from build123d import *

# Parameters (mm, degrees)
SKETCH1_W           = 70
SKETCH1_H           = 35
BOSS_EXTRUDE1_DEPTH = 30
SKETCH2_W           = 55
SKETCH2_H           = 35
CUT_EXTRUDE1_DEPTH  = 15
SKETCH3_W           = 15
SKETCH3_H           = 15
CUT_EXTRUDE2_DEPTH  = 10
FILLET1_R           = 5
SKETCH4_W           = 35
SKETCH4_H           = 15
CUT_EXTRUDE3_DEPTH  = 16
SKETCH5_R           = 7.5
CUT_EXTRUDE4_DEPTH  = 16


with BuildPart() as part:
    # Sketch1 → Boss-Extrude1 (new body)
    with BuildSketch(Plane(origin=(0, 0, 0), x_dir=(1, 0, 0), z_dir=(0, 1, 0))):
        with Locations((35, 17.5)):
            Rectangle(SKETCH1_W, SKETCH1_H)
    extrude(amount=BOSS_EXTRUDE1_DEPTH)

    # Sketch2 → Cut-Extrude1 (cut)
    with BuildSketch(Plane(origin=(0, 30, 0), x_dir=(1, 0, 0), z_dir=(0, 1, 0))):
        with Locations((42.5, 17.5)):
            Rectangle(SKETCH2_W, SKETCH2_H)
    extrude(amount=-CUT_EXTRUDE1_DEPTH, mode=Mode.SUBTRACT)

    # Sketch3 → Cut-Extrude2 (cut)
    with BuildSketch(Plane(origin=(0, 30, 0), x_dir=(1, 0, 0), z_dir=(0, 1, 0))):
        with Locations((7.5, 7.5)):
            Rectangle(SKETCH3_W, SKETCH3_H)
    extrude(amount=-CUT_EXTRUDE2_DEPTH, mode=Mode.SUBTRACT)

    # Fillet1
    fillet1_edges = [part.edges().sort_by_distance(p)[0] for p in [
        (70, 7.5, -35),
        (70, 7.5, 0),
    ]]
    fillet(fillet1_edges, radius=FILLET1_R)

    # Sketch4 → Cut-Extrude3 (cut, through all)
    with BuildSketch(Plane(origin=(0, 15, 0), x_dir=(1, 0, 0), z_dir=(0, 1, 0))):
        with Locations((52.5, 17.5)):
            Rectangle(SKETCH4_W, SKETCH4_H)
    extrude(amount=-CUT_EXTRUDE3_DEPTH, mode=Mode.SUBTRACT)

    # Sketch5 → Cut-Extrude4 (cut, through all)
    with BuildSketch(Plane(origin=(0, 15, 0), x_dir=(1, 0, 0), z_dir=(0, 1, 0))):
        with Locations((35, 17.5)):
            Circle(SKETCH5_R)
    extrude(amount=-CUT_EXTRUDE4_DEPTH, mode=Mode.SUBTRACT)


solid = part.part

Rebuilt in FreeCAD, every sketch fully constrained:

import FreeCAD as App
import Part
import Sketcher


def edges_at(feature, points):
    """Names of the edges that pass closest to the given points."""
    edges = feature.Shape.Edges
    near = lambda p: min(range(len(edges)), key=lambda i: edges[i].distToShape(Part.Vertex(*p))[0])
    return sorted({f"Edge{near(p) + 1}" for p in points})

doc = App.newDocument("Part")
params = doc.addObject("Spreadsheet::Sheet", "Params")
for row, (alias, value) in enumerate([
    ("sketch1_width", "70 mm"),
    ("sketch1_height", "35 mm"),
    ("pad1_length", "30 mm"),
    ("sketch2_width", "55 mm"),
    ("sketch2_height", "35 mm"),
    ("pocket1_length", "15 mm"),
    ("sketch3_width", "15 mm"),
    ("pocket2_length", "10 mm"),
    ("fillet_radius", "5 mm"),
    ("sketch4_width", "35 mm"),
    ("sketch4_height", "15 mm"),
    ("sketch5_diameter", "15 mm"),
], start=1):
    params.set(f"A{row}", alias)
    params.set(f"B{row}", "=" + value)
    params.setAlias(f"B{row}", alias)

body = doc.addObject("PartDesign::Body", "Body")

# Sketch on XZ plane
sketch1 = doc.addObject("Sketcher::SketchObject", "Sketch")
body.addObject(sketch1)
sketch1.AttachmentSupport = (doc.XZ_Plane, [""])
sketch1.MapMode = "FlatFace"
sketch1.addGeometry(Part.LineSegment(App.Vector(0, -35, 0), App.Vector(0, 0, 0)), False)
sketch1.addGeometry(Part.LineSegment(App.Vector(0, 0, 0), App.Vector(70, 0, 0)), False)
sketch1.addGeometry(Part.LineSegment(App.Vector(70, 0, 0), App.Vector(70, -35, 0)), False)
sketch1.addGeometry(Part.LineSegment(App.Vector(70, -35, 0), App.Vector(0, -35, 0)), False)
sketch1.addConstraint(Sketcher.Constraint("Coincident", 0, 2, 1, 1))
sketch1.addConstraint(Sketcher.Constraint("Coincident", 1, 2, 2, 1))
sketch1.addConstraint(Sketcher.Constraint("Coincident", 2, 2, 3, 1))
sketch1.addConstraint(Sketcher.Constraint("Coincident", 3, 2, 0, 1))
sketch1.addConstraint(Sketcher.Constraint("Vertical", 0))
sketch1.addConstraint(Sketcher.Constraint("Horizontal", 1))
sketch1.addConstraint(Sketcher.Constraint("Vertical", 2))
sketch1.addConstraint(Sketcher.Constraint("Horizontal", 3))
sketch1.addConstraint(Sketcher.Constraint("Coincident", 0, 2, -1, 1))
sketch1.addConstraint(Sketcher.Constraint("DistanceX", 1, 1, 1, 2, 70.0))
sketch1.addConstraint(Sketcher.Constraint("DistanceY", 0, 1, 0, 2, 35.0))
sketch1.setExpression("Constraints[9]", "Params.sketch1_width")
sketch1.setExpression("Constraints[10]", "Params.sketch1_height")
pad1 = doc.addObject("PartDesign::Pad", "Pad")
body.addObject(pad1)
pad1.Profile = sketch1
pad1.setExpression("Length", "Params.pad1_length")
pad1.Reversed = True

# Sketch on XZ plane
sketch2 = doc.addObject("Sketcher::SketchObject", "Sketch001")
body.addObject(sketch2)
sketch2.AttachmentSupport = (doc.XZ_Plane, [""])
sketch2.MapMode = "FlatFace"
sketch2.AttachmentOffset = App.Placement(App.Vector(0, 0, -30), App.Rotation())
sketch2.addGeometry(Part.LineSegment(App.Vector(15, -35, 0), App.Vector(15, 0, 0)), False)
sketch2.addGeometry(Part.LineSegment(App.Vector(15, 0, 0), App.Vector(70, 0, 0)), False)
sketch2.addGeometry(Part.LineSegment(App.Vector(70, 0, 0), App.Vector(70, -35, 0)), False)
sketch2.addGeometry(Part.LineSegment(App.Vector(70, -35, 0), App.Vector(15, -35, 0)), False)
sketch2.addConstraint(Sketcher.Constraint("Coincident", 0, 2, 1, 1))
sketch2.addConstraint(Sketcher.Constraint("Coincident", 1, 2, 2, 1))
sketch2.addConstraint(Sketcher.Constraint("Coincident", 2, 2, 3, 1))
sketch2.addConstraint(Sketcher.Constraint("Coincident", 3, 2, 0, 1))
sketch2.addConstraint(Sketcher.Constraint("Vertical", 0))
sketch2.addConstraint(Sketcher.Constraint("Horizontal", 1))
sketch2.addConstraint(Sketcher.Constraint("Vertical", 2))
sketch2.addConstraint(Sketcher.Constraint("Horizontal", 3))
sketch2.addConstraint(Sketcher.Constraint("PointOnObject", 0, 2, -1))
sketch2.addConstraint(Sketcher.Constraint("DistanceX", 1, 1, 1, 2, 55.0))
sketch2.addConstraint(Sketcher.Constraint("DistanceY", 0, 1, 0, 2, 35.0))
sketch2.addConstraint(Sketcher.Constraint("DistanceX", -1, 1, 0, 2, 15.0))
sketch2.setExpression("Constraints[9]", "Params.sketch2_width")
sketch2.setExpression("Constraints[10]", "Params.sketch2_height")
pocket1 = doc.addObject("PartDesign::Pocket", "Pocket")
body.addObject(pocket1)
pocket1.Profile = sketch2
pocket1.setExpression("Length", "Params.pocket1_length")
pocket1.Reversed = True

# Sketch on XZ plane
sketch3 = doc.addObject("Sketcher::SketchObject", "Sketch002")
body.addObject(sketch3)
sketch3.AttachmentSupport = (doc.XZ_Plane, [""])
sketch3.MapMode = "FlatFace"
sketch3.AttachmentOffset = App.Placement(App.Vector(0, 0, -30), App.Rotation())
sketch3.addGeometry(Part.LineSegment(App.Vector(0, -15, 0), App.Vector(0, 0, 0)), False)
sketch3.addGeometry(Part.LineSegment(App.Vector(0, 0, 0), App.Vector(15, 0, 0)), False)
sketch3.addGeometry(Part.LineSegment(App.Vector(15, 0, 0), App.Vector(15, -15, 0)), False)
sketch3.addGeometry(Part.LineSegment(App.Vector(15, -15, 0), App.Vector(0, -15, 0)), False)
sketch3.addConstraint(Sketcher.Constraint("Coincident", 0, 2, 1, 1))
sketch3.addConstraint(Sketcher.Constraint("Coincident", 1, 2, 2, 1))
sketch3.addConstraint(Sketcher.Constraint("Coincident", 2, 2, 3, 1))
sketch3.addConstraint(Sketcher.Constraint("Coincident", 3, 2, 0, 1))
sketch3.addConstraint(Sketcher.Constraint("Vertical", 0))
sketch3.addConstraint(Sketcher.Constraint("Horizontal", 1))
sketch3.addConstraint(Sketcher.Constraint("Vertical", 2))
sketch3.addConstraint(Sketcher.Constraint("Horizontal", 3))
sketch3.addConstraint(Sketcher.Constraint("Coincident", 0, 2, -1, 1))
sketch3.addConstraint(Sketcher.Constraint("Equal", 3, 0))
sketch3.addConstraint(Sketcher.Constraint("DistanceX", 1, 1, 1, 2, 15.0))
sketch3.setExpression("Constraints[10]", "Params.sketch3_width")
pocket2 = doc.addObject("PartDesign::Pocket", "Pocket001")
body.addObject(pocket2)
pocket2.Profile = sketch3
pocket2.setExpression("Length", "Params.pocket2_length")
pocket2.Reversed = True
doc.recompute()

fillet = doc.addObject("PartDesign::Fillet", "Fillet")
body.addObject(fillet)
fillet.Base = (pocket2, edges_at(pocket2, [(70, 7.5, -35), (70, 7.5, 0)]))
fillet.setExpression("Radius", "Params.fillet_radius")

# Sketch on XZ plane
sketch4 = doc.addObject("Sketcher::SketchObject", "Sketch003")
body.addObject(sketch4)
sketch4.AttachmentSupport = (doc.XZ_Plane, [""])
sketch4.MapMode = "FlatFace"
sketch4.AttachmentOffset = App.Placement(App.Vector(0, 0, -15), App.Rotation())
sketch4.addGeometry(Part.LineSegment(App.Vector(35, -25, 0), App.Vector(35, -10, 0)), False)
sketch4.addGeometry(Part.LineSegment(App.Vector(35, -10, 0), App.Vector(70, -10, 0)), False)
sketch4.addGeometry(Part.LineSegment(App.Vector(70, -10, 0), App.Vector(70, -25, 0)), False)
sketch4.addGeometry(Part.LineSegment(App.Vector(70, -25, 0), App.Vector(35, -25, 0)), False)
sketch4.addConstraint(Sketcher.Constraint("Coincident", 0, 2, 1, 1))
sketch4.addConstraint(Sketcher.Constraint("Coincident", 1, 2, 2, 1))
sketch4.addConstraint(Sketcher.Constraint("Coincident", 2, 2, 3, 1))
sketch4.addConstraint(Sketcher.Constraint("Coincident", 3, 2, 0, 1))
sketch4.addConstraint(Sketcher.Constraint("Vertical", 0))
sketch4.addConstraint(Sketcher.Constraint("Horizontal", 1))
sketch4.addConstraint(Sketcher.Constraint("Vertical", 2))
sketch4.addConstraint(Sketcher.Constraint("Horizontal", 3))
sketch4.addConstraint(Sketcher.Constraint("DistanceX", 1, 1, 1, 2, 35.0))
sketch4.addConstraint(Sketcher.Constraint("DistanceY", 0, 1, 0, 2, 15.0))
sketch4.addConstraint(Sketcher.Constraint("DistanceX", -1, 1, 0, 2, 35.0))
sketch4.addConstraint(Sketcher.Constraint("DistanceY", 0, 2, -1, 1, 10.0))
sketch4.setExpression("Constraints[8]", "Params.sketch4_width")
sketch4.setExpression("Constraints[9]", "Params.sketch4_height")
pocket3 = doc.addObject("PartDesign::Pocket", "Pocket002")
body.addObject(pocket3)
pocket3.Profile = sketch4
pocket3.Type = "ThroughAll"
pocket3.Reversed = True

# Sketch on XZ plane
sketch5 = doc.addObject("Sketcher::SketchObject", "Sketch004")
body.addObject(sketch5)
sketch5.AttachmentSupport = (doc.XZ_Plane, [""])
sketch5.MapMode = "FlatFace"
sketch5.AttachmentOffset = App.Placement(App.Vector(0, 0, -15), App.Rotation())
sketch5.addGeometry(Part.Circle(App.Vector(35, -18, 0), App.Vector(0, 0, 1), 8), False)
sketch5.addConstraint(Sketcher.Constraint("Diameter", 0, 15.0))
sketch5.addConstraint(Sketcher.Constraint("DistanceX", -1, 1, 0, 3, 35.0))
sketch5.addConstraint(Sketcher.Constraint("DistanceY", 0, 3, -1, 1, 17.5))
sketch5.setExpression("Constraints[0]", "Params.sketch5_diameter")
pocket4 = doc.addObject("PartDesign::Pocket", "Pocket003")
body.addObject(pocket4)
pocket4.Profile = sketch5
pocket4.Type = "ThroughAll"
pocket4.Reversed = True

doc.recompute()
